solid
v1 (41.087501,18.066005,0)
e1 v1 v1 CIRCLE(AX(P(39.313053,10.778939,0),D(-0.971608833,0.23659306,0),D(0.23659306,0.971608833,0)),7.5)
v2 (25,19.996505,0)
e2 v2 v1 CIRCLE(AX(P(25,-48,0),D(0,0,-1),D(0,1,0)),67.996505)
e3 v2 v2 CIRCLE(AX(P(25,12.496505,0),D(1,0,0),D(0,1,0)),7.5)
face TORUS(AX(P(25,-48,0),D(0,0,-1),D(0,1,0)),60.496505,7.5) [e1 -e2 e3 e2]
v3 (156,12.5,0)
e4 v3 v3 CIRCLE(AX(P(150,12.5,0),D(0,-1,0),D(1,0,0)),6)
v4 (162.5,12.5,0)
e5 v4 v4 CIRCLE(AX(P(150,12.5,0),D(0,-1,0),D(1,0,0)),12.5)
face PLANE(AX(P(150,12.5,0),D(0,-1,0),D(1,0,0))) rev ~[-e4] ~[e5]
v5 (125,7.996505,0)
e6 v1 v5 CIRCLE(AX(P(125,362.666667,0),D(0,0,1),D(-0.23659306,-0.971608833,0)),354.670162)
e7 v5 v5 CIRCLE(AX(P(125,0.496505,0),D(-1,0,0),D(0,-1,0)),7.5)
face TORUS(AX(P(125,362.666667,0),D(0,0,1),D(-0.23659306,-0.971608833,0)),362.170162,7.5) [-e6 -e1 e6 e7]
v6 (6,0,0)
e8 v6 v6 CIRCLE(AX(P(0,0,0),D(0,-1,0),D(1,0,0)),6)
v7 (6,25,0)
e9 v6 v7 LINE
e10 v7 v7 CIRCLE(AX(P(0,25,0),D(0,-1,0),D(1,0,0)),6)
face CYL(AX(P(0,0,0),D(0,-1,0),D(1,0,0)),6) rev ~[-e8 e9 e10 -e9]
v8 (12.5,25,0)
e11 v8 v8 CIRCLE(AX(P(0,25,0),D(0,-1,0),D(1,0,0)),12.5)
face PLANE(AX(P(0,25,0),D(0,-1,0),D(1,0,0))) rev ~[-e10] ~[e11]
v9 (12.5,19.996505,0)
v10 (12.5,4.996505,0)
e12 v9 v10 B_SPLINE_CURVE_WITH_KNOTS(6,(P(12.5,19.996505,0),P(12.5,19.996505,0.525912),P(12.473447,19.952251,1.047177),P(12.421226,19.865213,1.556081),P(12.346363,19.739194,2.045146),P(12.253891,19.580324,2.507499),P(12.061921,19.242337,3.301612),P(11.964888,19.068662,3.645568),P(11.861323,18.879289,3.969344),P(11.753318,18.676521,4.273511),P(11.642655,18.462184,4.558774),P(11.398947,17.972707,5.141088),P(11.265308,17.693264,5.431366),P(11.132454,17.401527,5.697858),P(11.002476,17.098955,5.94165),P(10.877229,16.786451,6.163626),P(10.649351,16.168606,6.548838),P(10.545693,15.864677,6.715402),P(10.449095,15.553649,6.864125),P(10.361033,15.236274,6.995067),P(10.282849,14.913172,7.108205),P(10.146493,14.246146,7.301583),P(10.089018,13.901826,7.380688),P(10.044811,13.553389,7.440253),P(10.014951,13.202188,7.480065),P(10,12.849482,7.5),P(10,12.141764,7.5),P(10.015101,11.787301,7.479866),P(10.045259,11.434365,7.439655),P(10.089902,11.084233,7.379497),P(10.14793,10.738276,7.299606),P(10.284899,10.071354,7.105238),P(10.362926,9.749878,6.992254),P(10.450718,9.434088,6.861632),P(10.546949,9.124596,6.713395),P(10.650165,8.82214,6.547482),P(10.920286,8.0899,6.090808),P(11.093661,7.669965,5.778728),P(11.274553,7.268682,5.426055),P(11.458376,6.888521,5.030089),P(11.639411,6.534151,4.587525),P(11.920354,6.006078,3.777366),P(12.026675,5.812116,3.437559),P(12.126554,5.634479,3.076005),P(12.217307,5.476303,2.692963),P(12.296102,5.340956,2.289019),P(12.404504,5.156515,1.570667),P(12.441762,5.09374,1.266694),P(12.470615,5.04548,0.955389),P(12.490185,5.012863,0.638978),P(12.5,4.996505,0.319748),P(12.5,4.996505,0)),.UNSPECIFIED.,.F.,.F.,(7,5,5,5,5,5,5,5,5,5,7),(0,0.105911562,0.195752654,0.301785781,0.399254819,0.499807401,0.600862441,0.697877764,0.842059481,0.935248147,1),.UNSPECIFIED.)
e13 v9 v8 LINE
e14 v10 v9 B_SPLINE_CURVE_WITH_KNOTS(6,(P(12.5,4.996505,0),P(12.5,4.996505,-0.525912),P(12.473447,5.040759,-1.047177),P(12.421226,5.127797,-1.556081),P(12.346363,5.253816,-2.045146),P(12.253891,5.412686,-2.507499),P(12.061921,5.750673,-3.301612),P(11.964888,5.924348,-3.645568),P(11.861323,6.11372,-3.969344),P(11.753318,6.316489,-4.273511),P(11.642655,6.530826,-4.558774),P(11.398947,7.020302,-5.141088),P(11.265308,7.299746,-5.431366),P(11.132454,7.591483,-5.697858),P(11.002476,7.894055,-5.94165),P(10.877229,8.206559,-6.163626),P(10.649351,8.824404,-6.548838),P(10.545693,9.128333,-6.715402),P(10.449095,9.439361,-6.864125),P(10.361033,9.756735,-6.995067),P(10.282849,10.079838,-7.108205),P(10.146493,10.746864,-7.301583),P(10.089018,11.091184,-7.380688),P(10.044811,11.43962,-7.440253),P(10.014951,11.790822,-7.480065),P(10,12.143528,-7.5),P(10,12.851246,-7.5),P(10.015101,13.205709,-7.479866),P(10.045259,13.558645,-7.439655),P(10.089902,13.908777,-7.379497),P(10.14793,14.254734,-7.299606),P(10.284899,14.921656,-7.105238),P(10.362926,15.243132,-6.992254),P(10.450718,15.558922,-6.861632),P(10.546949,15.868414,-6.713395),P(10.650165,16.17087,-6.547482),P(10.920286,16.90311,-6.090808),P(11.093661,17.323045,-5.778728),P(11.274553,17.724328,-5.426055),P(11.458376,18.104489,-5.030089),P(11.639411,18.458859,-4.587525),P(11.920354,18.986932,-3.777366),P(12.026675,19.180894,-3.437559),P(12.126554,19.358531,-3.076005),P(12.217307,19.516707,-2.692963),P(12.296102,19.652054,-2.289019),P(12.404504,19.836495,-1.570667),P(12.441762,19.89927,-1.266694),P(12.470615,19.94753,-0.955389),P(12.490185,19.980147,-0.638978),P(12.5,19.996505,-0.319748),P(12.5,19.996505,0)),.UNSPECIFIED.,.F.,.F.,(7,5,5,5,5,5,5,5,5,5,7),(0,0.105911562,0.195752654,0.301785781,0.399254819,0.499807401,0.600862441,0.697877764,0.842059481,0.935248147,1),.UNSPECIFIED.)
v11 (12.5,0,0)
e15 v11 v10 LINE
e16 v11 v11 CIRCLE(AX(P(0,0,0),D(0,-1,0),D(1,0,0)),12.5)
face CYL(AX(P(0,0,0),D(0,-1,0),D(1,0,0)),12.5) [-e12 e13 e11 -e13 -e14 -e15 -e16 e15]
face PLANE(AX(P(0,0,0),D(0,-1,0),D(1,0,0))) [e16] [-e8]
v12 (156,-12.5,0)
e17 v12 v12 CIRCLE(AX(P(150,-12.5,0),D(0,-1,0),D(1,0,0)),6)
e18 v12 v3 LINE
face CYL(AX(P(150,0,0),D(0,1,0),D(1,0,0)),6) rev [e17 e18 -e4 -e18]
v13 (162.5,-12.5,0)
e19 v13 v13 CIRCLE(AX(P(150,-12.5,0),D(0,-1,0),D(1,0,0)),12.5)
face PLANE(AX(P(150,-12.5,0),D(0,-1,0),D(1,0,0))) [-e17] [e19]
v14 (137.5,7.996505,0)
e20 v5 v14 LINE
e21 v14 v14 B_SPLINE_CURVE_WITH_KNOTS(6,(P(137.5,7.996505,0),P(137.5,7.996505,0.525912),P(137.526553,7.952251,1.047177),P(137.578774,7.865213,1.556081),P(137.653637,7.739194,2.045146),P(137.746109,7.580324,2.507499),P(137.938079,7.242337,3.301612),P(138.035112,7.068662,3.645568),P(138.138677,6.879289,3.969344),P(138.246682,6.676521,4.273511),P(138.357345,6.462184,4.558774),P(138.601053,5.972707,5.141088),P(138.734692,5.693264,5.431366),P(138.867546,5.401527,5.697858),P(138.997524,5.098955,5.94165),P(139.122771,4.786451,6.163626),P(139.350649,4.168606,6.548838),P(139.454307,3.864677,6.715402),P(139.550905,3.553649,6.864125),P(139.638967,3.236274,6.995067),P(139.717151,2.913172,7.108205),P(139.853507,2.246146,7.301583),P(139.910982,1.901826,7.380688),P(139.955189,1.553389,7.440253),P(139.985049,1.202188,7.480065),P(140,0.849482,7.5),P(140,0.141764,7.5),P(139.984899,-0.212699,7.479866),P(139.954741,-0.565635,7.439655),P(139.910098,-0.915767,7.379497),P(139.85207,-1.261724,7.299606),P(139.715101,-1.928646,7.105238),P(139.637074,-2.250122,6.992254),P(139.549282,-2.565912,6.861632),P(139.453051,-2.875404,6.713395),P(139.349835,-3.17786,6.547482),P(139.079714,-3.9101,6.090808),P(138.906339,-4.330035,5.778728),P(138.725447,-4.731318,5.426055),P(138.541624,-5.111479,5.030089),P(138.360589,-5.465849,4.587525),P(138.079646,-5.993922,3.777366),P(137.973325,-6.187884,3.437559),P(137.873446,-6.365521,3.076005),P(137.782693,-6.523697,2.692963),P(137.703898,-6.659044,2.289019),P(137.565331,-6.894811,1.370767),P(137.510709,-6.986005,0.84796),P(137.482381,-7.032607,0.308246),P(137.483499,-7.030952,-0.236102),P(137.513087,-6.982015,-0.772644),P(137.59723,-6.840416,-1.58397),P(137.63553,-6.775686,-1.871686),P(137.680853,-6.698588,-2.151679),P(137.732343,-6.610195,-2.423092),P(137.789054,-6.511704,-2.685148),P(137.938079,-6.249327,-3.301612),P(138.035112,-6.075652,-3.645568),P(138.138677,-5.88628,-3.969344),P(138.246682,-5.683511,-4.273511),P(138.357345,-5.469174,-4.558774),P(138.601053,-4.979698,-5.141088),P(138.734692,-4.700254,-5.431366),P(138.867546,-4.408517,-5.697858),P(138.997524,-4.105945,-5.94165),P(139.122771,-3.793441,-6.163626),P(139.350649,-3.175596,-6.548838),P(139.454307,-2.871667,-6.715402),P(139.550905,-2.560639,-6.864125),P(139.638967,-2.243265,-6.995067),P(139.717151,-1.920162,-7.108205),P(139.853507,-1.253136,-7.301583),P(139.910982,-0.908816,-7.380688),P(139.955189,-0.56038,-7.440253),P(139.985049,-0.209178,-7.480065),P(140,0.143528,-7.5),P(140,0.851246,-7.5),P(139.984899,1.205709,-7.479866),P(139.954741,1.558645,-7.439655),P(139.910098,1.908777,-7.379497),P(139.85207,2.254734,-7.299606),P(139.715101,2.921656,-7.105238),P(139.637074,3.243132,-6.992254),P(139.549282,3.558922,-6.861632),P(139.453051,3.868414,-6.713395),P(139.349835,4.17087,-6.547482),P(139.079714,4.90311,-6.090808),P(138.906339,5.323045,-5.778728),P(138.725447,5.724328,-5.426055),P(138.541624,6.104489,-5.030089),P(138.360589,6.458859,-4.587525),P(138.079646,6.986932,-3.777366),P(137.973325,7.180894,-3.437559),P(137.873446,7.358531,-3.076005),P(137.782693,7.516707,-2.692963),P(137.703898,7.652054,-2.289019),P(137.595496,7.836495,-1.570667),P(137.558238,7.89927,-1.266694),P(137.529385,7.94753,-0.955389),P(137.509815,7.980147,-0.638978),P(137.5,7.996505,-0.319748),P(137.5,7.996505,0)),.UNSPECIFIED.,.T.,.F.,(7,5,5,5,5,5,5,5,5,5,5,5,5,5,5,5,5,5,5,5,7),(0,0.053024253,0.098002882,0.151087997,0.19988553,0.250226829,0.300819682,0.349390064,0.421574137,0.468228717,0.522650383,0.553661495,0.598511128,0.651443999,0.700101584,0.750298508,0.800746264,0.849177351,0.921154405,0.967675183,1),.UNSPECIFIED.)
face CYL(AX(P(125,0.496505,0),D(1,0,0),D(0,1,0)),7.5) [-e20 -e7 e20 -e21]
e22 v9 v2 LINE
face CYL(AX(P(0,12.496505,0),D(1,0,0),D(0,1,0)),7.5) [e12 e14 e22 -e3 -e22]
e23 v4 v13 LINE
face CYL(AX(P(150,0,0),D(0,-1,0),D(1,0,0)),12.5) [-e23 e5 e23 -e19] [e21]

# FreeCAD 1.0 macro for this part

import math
import FreeCAD as App
import Part
import Sketcher

V = App.Vector

doc = App.newDocument("Part")
body = doc.addObject("PartDesign::Body", "Body")

sketch1 = body.newObject("Sketcher::SketchObject", "Sketch")
sketch1.AttachmentSupport = (doc.getObject("XZ_Plane"), [""])
sketch1.MapMode = "FlatFace"
sketch1.addGeometry([
    Part.Circle(V(0, 0, 0), V(0, 0, 1), 12.5),
    Part.Circle(V(0, 0, 0), V(0, 0, 1), 6),
], False)
sketch1.addConstraint([
    Sketcher.Constraint("Coincident", 0, 3, -1, 1),
    Sketcher.Constraint("Coincident", 1, 3, -1, 1),
    Sketcher.Constraint("Diameter", 0, 25.0),
    Sketcher.Constraint("Diameter", 1, 12.0),
])
pad1 = body.newObject("PartDesign::Pad", "Pad")
pad1.Profile = sketch1
pad1.Length = 25
pad1.Reversed = True
body2 = doc.addObject("PartDesign::Body", "Body001")

sketch2 = body2.newObject("Sketcher::SketchObject", "Sketch001")
sketch2.AttachmentSupport = (doc.getObject("XZ_Plane001"), [""])
sketch2.MapMode = "FlatFace"
sketch2.addGeometry([
    Part.Circle(V(150, 0, 0), V(0, 0, 1), 12.5),
    Part.Circle(V(150, 0, 0), V(0, 0, 1), 6),
], False)
sketch2.addConstraint([
    Sketcher.Constraint("Coincident", 1, 3, 0, 3),
    Sketcher.Constraint("PointOnObject", 0, 3, -1),
    Sketcher.Constraint("Diameter", 0, 25.0),
    Sketcher.Constraint("Diameter", 1, 12.0),
    Sketcher.Constraint("DistanceX", -1, 1, 0, 3, 150.0),
])
pad2 = body2.newObject("PartDesign::Pad", "Pad001")
pad2.Profile = sketch2
pad2.Length = 25
pad2.Midplane = True
body.AllowCompound = True
doc.recompute()

boolean = body.newObject("PartDesign::Boolean", "Boolean")
boolean.Type = "Fuse"
boolean.addObjects([body2])

sketch3 = body.newObject("Sketcher::SketchObject", "Sketch002")
sketch3.AttachmentSupport = (doc.getObject("YZ_Plane"), [""])
sketch3.MapMode = "FlatFace"
sketch3.addGeometry(Part.Circle(V(12.496505, 0, 0), V(0, 0, 1), 7.5), False)
sketch3.addConstraint([
    Sketcher.Constraint("PointOnObject", 0, 3, -1),
    Sketcher.Constraint("Diameter", 0, 15.0),
    Sketcher.Constraint("DistanceX", -1, 1, 0, 3, 12.496505),
])

sketch4 = body.newObject("Sketcher::SketchObject", "Sketch003")
sketch4.AttachmentSupport = (doc.getObject("XY_Plane"), [""])
sketch4.MapMode = "FlatFace"
sketch4.addGeometry([
    Part.LineSegment(V(0, 12, 0), V(25, 12, 0)),
    Part.ArcOfCircle(Part.Circle(V(25, -48, 0), V(0, 0, 1), 60), math.radians(76.314453), math.radians(90)),
    Part.ArcOfCircle(Part.Circle(V(125, 362.666667, 0), V(0, 0, 1), 362.666667), math.radians(-103.685547), math.radians(-90)),
    Part.LineSegment(V(125, 0, 0), V(150, 0, 0)),
], False)
sketch4.addConstraint([
    Sketcher.Constraint("Tangent", 0, 2, 1, 2),
    Sketcher.Constraint("Tangent", 1, 1, 2, 1),
    Sketcher.Constraint("Tangent", 2, 2, 3, 1),
    Sketcher.Constraint("Horizontal", 0),
    Sketcher.Constraint("Horizontal", 3),
    Sketcher.Constraint("PointOnObject", 0, 1, -2),
    Sketcher.Constraint("PointOnObject", 2, 2, -1),
    Sketcher.Constraint("Equal", 0, 3),
    Sketcher.Constraint("Radius", 1, 60.0),
    Sketcher.Constraint("DistanceX", 0, 1, 0, 2, 25.0),
    Sketcher.Constraint("DistanceY", 1, 3, -1, 1, 48.0),
    Sketcher.Constraint("DistanceX", -1, 1, 2, 3, 125.0),
])
doc.recompute()

additivepipe = body.newObject("PartDesign::AdditivePipe", "AdditivePipe")
additivepipe.Profile = sketch3
additivepipe.Spine = (sketch4, ["Edge1", "Edge2", "Edge3", "Edge4"])

sketch5 = body.newObject("Sketcher::SketchObject", "Sketch004")
sketch5.AttachmentSupport = (doc.getObject("XZ_Plane"), [""])
sketch5.MapMode = "FlatFace"
sketch5.addGeometry(Part.Circle(V(0, 0, 0), V(0, 0, 1), 6), False)
sketch5.addConstraint([
    Sketcher.Constraint("Coincident", 0, 3, -1, 1),
    Sketcher.Constraint("Diameter", 0, 12.0),
])
pocket1 = body.newObject("PartDesign::Pocket", "Pocket")
pocket1.Profile = sketch5
pocket1.Type = "ThroughAll"

sketch6 = body.newObject("Sketcher::SketchObject", "Sketch005")
sketch6.AttachmentSupport = (doc.getObject("XZ_Plane"), [""])
sketch6.MapMode = "FlatFace"
sketch6.addGeometry(Part.Circle(V(150, 0, 0), V(0, 0, 1), 6), False)
sketch6.addConstraint([
    Sketcher.Constraint("PointOnObject", 0, 3, -1),
    Sketcher.Constraint("Diameter", 0, 12.0),
    Sketcher.Constraint("DistanceX", -1, 1, 0, 3, 150.0),
])
pocket2 = body.newObject("PartDesign::Pocket", "Pocket001")
pocket2.Profile = sketch6
pocket2.Length = 50
pocket2.Midplane = True

doc.recompute()
